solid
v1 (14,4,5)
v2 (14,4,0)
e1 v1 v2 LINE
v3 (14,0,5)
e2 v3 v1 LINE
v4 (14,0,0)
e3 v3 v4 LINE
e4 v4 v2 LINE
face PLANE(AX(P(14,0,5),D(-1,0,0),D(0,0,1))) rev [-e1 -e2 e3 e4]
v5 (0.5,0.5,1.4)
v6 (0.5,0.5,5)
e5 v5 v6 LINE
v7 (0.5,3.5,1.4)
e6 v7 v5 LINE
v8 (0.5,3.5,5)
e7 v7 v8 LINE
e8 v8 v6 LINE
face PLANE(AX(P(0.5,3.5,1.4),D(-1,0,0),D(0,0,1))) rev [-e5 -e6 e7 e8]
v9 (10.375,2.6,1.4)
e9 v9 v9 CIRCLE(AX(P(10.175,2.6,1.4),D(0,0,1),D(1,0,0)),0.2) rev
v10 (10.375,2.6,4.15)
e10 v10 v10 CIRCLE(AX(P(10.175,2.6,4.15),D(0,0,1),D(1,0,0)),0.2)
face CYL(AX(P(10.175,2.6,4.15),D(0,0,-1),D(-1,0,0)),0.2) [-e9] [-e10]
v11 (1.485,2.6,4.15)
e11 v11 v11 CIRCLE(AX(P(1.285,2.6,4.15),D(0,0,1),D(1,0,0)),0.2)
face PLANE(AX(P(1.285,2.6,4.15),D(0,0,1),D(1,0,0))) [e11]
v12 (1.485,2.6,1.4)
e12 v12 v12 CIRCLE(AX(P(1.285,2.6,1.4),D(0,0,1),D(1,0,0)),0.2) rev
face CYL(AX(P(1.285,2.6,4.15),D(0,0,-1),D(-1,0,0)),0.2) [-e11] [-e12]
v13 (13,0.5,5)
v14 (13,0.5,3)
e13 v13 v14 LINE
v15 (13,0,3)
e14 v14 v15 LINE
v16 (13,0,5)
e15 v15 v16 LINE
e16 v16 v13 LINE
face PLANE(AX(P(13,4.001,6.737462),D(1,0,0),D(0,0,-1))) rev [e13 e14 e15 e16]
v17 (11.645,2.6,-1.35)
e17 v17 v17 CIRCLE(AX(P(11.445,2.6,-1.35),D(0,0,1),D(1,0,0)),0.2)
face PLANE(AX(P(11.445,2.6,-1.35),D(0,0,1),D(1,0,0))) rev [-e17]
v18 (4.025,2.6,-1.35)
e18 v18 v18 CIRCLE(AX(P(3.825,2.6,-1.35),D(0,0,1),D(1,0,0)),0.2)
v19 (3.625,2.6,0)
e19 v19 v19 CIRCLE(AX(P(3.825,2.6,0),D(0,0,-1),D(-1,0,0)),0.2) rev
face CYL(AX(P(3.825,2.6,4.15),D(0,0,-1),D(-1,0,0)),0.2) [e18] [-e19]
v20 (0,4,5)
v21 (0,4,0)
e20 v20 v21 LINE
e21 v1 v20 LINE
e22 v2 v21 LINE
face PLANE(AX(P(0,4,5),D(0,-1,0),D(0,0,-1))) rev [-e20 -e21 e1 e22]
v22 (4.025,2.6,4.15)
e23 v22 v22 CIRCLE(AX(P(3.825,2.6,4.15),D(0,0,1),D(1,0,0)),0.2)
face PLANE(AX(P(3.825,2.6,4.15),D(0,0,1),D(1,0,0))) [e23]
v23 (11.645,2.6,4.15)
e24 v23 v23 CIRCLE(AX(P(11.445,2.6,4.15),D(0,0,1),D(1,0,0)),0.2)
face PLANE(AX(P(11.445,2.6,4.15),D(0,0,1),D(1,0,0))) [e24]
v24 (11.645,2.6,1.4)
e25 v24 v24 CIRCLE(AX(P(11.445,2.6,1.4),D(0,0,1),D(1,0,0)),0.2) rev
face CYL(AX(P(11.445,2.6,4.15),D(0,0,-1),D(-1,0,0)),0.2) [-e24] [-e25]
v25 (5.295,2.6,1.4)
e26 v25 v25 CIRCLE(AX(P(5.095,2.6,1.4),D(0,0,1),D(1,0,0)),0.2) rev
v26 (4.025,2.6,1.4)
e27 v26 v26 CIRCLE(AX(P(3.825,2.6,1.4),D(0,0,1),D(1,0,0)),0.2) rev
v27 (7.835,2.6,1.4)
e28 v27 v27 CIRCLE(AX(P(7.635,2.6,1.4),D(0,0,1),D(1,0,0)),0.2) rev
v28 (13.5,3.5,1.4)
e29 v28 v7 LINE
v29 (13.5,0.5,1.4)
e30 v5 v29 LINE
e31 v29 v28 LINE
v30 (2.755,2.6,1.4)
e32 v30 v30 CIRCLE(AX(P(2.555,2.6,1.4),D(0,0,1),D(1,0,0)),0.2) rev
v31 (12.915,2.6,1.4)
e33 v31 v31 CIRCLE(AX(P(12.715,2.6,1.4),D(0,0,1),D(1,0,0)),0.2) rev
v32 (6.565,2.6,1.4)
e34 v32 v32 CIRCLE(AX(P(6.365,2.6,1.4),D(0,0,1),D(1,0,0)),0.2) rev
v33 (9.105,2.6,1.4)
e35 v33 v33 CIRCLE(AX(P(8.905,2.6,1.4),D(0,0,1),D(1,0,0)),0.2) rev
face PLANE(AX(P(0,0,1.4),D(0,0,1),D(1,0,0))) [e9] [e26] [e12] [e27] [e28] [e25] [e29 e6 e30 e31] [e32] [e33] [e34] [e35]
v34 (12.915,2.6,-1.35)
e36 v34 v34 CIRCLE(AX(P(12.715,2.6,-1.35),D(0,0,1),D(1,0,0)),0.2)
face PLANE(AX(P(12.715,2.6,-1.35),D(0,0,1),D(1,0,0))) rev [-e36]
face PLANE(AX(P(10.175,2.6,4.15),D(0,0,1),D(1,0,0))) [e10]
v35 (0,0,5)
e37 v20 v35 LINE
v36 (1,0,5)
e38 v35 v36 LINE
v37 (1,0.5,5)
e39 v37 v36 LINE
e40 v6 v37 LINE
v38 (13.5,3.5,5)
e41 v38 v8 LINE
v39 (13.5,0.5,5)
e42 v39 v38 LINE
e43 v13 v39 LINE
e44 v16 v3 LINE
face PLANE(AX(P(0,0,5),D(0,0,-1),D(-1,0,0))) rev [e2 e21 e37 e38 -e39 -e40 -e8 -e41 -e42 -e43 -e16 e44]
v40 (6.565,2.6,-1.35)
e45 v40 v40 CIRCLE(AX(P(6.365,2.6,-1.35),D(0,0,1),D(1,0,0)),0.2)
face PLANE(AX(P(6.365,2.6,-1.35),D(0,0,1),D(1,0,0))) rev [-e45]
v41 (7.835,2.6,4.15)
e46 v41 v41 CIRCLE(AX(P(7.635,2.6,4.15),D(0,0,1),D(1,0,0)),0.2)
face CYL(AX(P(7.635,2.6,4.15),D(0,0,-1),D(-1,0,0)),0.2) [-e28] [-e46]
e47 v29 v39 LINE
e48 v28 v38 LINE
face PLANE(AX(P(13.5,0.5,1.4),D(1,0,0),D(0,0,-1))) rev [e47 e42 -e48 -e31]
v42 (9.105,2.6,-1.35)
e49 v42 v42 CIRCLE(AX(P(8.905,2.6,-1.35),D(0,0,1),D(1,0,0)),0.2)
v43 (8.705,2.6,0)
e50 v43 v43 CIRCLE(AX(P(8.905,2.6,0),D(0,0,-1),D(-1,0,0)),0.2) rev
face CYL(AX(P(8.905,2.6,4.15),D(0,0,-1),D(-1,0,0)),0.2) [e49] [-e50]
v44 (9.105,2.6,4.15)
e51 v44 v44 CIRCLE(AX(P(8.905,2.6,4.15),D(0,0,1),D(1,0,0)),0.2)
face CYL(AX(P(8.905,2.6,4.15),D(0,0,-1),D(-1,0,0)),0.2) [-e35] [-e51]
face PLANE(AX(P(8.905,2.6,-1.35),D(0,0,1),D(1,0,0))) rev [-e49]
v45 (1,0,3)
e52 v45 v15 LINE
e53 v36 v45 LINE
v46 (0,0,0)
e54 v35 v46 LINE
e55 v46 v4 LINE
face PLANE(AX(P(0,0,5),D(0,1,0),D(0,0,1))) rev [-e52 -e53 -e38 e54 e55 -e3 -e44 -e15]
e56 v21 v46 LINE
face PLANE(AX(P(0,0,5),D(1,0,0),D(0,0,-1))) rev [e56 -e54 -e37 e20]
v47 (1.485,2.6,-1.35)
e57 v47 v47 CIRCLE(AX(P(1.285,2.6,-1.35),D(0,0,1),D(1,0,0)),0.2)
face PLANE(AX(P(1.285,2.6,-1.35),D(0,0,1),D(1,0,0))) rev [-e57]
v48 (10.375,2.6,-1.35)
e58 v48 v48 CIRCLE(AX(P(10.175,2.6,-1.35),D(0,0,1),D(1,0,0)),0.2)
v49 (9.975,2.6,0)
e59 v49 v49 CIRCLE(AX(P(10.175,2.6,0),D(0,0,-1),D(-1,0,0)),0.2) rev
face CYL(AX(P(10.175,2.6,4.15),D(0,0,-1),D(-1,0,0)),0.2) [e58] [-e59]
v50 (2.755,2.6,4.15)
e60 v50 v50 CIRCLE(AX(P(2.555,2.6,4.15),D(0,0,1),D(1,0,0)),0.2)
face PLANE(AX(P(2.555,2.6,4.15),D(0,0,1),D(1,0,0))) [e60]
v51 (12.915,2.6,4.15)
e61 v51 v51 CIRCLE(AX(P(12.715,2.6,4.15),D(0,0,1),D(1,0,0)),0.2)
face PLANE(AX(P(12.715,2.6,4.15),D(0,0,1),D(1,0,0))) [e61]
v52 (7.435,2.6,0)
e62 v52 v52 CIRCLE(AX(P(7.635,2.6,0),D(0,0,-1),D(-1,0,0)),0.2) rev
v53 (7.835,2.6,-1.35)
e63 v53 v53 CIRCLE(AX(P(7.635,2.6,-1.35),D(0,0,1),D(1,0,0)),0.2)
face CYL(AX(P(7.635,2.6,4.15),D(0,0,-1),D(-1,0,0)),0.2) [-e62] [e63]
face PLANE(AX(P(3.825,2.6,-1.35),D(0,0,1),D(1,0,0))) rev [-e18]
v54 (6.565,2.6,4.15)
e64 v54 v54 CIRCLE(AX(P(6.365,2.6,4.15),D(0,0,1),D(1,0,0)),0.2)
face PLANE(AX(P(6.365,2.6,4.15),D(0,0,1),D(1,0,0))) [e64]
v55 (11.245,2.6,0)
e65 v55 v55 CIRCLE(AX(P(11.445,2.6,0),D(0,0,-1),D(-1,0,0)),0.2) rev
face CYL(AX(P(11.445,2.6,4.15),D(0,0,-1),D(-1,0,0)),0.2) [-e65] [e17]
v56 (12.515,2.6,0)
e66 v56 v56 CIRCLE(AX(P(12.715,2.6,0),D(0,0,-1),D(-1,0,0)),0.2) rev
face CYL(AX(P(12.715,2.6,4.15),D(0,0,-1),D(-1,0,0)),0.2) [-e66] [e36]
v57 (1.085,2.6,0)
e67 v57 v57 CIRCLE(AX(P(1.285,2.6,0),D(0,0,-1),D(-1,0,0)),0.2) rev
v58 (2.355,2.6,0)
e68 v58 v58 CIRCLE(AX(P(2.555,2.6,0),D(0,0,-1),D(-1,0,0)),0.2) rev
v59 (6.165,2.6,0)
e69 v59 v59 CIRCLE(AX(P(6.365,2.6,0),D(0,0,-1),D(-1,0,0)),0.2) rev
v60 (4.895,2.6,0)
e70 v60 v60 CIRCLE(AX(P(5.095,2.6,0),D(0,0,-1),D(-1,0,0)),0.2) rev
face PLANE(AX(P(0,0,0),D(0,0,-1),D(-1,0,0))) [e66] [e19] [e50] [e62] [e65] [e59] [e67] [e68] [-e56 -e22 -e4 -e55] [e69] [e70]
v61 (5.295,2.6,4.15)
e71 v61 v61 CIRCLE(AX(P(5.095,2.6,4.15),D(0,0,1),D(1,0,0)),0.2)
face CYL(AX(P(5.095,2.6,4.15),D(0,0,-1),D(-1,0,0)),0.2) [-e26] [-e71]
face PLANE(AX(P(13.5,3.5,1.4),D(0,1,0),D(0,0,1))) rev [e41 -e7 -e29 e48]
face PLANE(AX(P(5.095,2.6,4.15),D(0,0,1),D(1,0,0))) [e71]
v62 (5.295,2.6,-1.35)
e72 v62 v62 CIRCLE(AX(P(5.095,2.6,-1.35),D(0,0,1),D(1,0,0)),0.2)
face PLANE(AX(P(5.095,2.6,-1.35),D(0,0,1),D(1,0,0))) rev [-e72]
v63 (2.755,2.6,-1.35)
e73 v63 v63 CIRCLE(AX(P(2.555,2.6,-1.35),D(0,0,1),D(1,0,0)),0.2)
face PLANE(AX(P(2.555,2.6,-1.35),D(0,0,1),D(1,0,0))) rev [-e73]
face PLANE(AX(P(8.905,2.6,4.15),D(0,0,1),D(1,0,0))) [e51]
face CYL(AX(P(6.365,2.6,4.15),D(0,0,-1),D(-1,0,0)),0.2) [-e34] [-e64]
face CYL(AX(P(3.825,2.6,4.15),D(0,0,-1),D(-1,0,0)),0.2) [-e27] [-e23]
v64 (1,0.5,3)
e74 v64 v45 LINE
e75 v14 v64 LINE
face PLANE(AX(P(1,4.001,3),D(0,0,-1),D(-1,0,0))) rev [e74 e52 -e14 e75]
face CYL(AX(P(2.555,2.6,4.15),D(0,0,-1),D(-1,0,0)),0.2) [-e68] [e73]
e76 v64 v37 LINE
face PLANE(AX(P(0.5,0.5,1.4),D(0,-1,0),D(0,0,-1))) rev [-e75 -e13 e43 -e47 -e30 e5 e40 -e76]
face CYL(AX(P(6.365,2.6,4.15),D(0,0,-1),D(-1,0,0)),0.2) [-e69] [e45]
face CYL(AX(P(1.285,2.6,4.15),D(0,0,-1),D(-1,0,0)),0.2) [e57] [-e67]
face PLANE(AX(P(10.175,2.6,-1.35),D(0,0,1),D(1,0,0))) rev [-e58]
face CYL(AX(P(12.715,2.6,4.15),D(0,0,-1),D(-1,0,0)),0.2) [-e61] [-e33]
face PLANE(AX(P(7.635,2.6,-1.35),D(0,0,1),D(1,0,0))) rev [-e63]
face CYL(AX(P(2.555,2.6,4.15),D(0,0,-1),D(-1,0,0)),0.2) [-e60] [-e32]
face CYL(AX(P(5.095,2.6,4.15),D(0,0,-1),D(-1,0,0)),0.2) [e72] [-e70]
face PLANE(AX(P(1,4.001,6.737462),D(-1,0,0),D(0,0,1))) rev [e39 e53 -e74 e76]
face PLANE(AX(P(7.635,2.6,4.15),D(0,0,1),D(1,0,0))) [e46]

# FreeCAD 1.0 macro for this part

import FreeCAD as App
import Part
import Sketcher
Q = App.Units.Quantity

doc = App.newDocument("Part")
body = doc.addObject("PartDesign::Body", "Body")

sketch1 = doc.addObject("Sketcher::SketchObject", "Sketch")
body.addObject(sketch1)
sketch1.AttachmentSupport = (doc.XY_Plane, [""])
sketch1.MapMode = "FlatFace"
sketch1.addGeometry([
    Part.LineSegment(App.Vector(0, 4, 0), App.Vector(0, 0, 0)),
    Part.LineSegment(App.Vector(0, 0, 0), App.Vector(14, 0, 0)),
    Part.LineSegment(App.Vector(14, 0, 0), App.Vector(14, 4, 0)),
    Part.LineSegment(App.Vector(14, 4, 0), App.Vector(0, 4, 0)),
], False)
sketch1.addConstraint([
    Sketcher.Constraint("Coincident", 0, 2, 1, 1),
    Sketcher.Constraint("Coincident", 1, 2, 2, 1),
    Sketcher.Constraint("Coincident", 2, 2, 3, 1),
    Sketcher.Constraint("Coincident", 3, 2, 0, 1),
    Sketcher.Constraint("Vertical", 0),
    Sketcher.Constraint("Horizontal", 1),
    Sketcher.Constraint("Vertical", 2),
    Sketcher.Constraint("Horizontal", 3),
    Sketcher.Constraint("Coincident", 0, 2, -1, 1),
    Sketcher.Constraint("DistanceX", 1, 1, 1, 2, Q("14 mm")),
    Sketcher.Constraint("DistanceY", 0, 2, 0, 1, Q("4 mm")),
])
pad1 = doc.addObject("PartDesign::Pad", "Pad")
body.addObject(pad1)
pad1.Profile = sketch1
pad1.Length = 5

sketch2 = doc.addObject("Sketcher::SketchObject", "Sketch001")
body.addObject(sketch2)
sketch2.AttachmentSupport = (doc.XY_Plane, [""])
sketch2.MapMode = "FlatFace"
sketch2.AttachmentOffset = App.Placement(App.Vector(0, 0, 5), App.Rotation())
sketch2.addGeometry([
    Part.LineSegment(App.Vector(0.5, 3.5, 0), App.Vector(0.5, 0.5, 0)),
    Part.LineSegment(App.Vector(0.5, 0.5, 0), App.Vector(13.5, 0.5, 0)),
    Part.LineSegment(App.Vector(13.5, 0.5, 0), App.Vector(13.5, 3.5, 0)),
    Part.LineSegment(App.Vector(13.5, 3.5, 0), App.Vector(0.5, 3.5, 0)),
], False)
sketch2.addConstraint([
    Sketcher.Constraint("Coincident", 0, 2, 1, 1),
    Sketcher.Constraint("Coincident", 1, 2, 2, 1),
    Sketcher.Constraint("Coincident", 2, 2, 3, 1),
    Sketcher.Constraint("Coincident", 3, 2, 0, 1),
    Sketcher.Constraint("Vertical", 0),
    Sketcher.Constraint("Horizontal", 1),
    Sketcher.Constraint("Vertical", 2),
    Sketcher.Constraint("Horizontal", 3),
    Sketcher.Constraint("DistanceX", 1, 1, 1, 2, Q("13 mm")),
    Sketcher.Constraint("DistanceY", 0, 2, 0, 1, Q("3 mm")),
    Sketcher.Constraint("DistanceX", -1, 1, 0, 2, Q("0.5 mm")),
    Sketcher.Constraint("DistanceY", -1, 1, 0, 2, Q("0.5 mm")),
])
pocket1 = doc.addObject("PartDesign::Pocket", "Pocket")
body.addObject(pocket1)
pocket1.Profile = sketch2
pocket1.Length = 3.6

sketch3 = doc.addObject("Sketcher::SketchObject", "Sketch002")
body.addObject(sketch3)
sketch3.AttachmentSupport = (doc.XZ_Plane, [""])
sketch3.MapMode = "FlatFace"
sketch3.addGeometry([
    Part.LineSegment(App.Vector(1, 6.7, 0), App.Vector(1, 3, 0)),
    Part.LineSegment(App.Vector(1, 3, 0), App.Vector(13, 3, 0)),
    Part.LineSegment(App.Vector(13, 3, 0), App.Vector(13, 6.7, 0)),
    Part.LineSegment(App.Vector(13, 6.7, 0), App.Vector(1, 6.7, 0)),
], False)
sketch3.addConstraint([
    Sketcher.Constraint("Coincident", 0, 2, 1, 1),
    Sketcher.Constraint("Coincident", 1, 2, 2, 1),
    Sketcher.Constraint("Coincident", 2, 2, 3, 1),
    Sketcher.Constraint("Coincident", 3, 2, 0, 1),
    Sketcher.Constraint("Vertical", 0),
    Sketcher.Constraint("Horizontal", 1),
    Sketcher.Constraint("Vertical", 2),
    Sketcher.Constraint("Horizontal", 3),
    Sketcher.Constraint("DistanceX", 1, 1, 1, 2, Q("12 mm")),
    Sketcher.Constraint("DistanceX", -1, 1, 0, 2, Q("1 mm")),
    Sketcher.Constraint("DistanceY", -1, 1, 0, 2, Q("3 mm")),
    Sketcher.Constraint("DistanceY", 0, 2, 0, 1, Q("3.737462 mm")),
])
pocket2 = doc.addObject("PartDesign::Pocket", "Pocket001")
body.addObject(pocket2)
pocket2.Profile = sketch3
pocket2.Type = "UpToFirst"

sketch4 = doc.addObject("Sketcher::SketchObject", "Sketch003")
body.addObject(sketch4)
sketch4.AttachmentSupport = (doc.XY_Plane, [""])
sketch4.MapMode = "FlatFace"
sketch4.AttachmentOffset = App.Placement(App.Vector(0, 0, 1.4), App.Rotation())
sketch4.addGeometry(Part.Circle(App.Vector(1.28, 2.6, 0), App.Vector(0, 0, 1), 0.2), False)
sketch4.addConstraint([
    Sketcher.Constraint("Diameter", 0, Q("0.4 mm")),
    Sketcher.Constraint("DistanceY", -1, 1, 0, 3, Q("2.6 mm")),
    Sketcher.Constraint("DistanceX", -1, 1, 0, 3, Q("1.285 mm")),
])
pad2 = doc.addObject("PartDesign::Pad", "Pad001")
body.addObject(pad2)
pad2.Profile = sketch4
pad2.Length = 5.5
pad2.Midplane = True
doc.recompute()

linearpattern = doc.addObject("PartDesign::LinearPattern", "LinearPattern")
body.addObject(linearpattern)
linearpattern.Originals = [pad2]
linearpattern.Direction = (doc.X_Axis, [""])
linearpattern.Mode = "offset"
linearpattern.Offset = 1.27
linearpattern.Occurrences = 10
body.Tip = linearpattern

doc.recompute()
